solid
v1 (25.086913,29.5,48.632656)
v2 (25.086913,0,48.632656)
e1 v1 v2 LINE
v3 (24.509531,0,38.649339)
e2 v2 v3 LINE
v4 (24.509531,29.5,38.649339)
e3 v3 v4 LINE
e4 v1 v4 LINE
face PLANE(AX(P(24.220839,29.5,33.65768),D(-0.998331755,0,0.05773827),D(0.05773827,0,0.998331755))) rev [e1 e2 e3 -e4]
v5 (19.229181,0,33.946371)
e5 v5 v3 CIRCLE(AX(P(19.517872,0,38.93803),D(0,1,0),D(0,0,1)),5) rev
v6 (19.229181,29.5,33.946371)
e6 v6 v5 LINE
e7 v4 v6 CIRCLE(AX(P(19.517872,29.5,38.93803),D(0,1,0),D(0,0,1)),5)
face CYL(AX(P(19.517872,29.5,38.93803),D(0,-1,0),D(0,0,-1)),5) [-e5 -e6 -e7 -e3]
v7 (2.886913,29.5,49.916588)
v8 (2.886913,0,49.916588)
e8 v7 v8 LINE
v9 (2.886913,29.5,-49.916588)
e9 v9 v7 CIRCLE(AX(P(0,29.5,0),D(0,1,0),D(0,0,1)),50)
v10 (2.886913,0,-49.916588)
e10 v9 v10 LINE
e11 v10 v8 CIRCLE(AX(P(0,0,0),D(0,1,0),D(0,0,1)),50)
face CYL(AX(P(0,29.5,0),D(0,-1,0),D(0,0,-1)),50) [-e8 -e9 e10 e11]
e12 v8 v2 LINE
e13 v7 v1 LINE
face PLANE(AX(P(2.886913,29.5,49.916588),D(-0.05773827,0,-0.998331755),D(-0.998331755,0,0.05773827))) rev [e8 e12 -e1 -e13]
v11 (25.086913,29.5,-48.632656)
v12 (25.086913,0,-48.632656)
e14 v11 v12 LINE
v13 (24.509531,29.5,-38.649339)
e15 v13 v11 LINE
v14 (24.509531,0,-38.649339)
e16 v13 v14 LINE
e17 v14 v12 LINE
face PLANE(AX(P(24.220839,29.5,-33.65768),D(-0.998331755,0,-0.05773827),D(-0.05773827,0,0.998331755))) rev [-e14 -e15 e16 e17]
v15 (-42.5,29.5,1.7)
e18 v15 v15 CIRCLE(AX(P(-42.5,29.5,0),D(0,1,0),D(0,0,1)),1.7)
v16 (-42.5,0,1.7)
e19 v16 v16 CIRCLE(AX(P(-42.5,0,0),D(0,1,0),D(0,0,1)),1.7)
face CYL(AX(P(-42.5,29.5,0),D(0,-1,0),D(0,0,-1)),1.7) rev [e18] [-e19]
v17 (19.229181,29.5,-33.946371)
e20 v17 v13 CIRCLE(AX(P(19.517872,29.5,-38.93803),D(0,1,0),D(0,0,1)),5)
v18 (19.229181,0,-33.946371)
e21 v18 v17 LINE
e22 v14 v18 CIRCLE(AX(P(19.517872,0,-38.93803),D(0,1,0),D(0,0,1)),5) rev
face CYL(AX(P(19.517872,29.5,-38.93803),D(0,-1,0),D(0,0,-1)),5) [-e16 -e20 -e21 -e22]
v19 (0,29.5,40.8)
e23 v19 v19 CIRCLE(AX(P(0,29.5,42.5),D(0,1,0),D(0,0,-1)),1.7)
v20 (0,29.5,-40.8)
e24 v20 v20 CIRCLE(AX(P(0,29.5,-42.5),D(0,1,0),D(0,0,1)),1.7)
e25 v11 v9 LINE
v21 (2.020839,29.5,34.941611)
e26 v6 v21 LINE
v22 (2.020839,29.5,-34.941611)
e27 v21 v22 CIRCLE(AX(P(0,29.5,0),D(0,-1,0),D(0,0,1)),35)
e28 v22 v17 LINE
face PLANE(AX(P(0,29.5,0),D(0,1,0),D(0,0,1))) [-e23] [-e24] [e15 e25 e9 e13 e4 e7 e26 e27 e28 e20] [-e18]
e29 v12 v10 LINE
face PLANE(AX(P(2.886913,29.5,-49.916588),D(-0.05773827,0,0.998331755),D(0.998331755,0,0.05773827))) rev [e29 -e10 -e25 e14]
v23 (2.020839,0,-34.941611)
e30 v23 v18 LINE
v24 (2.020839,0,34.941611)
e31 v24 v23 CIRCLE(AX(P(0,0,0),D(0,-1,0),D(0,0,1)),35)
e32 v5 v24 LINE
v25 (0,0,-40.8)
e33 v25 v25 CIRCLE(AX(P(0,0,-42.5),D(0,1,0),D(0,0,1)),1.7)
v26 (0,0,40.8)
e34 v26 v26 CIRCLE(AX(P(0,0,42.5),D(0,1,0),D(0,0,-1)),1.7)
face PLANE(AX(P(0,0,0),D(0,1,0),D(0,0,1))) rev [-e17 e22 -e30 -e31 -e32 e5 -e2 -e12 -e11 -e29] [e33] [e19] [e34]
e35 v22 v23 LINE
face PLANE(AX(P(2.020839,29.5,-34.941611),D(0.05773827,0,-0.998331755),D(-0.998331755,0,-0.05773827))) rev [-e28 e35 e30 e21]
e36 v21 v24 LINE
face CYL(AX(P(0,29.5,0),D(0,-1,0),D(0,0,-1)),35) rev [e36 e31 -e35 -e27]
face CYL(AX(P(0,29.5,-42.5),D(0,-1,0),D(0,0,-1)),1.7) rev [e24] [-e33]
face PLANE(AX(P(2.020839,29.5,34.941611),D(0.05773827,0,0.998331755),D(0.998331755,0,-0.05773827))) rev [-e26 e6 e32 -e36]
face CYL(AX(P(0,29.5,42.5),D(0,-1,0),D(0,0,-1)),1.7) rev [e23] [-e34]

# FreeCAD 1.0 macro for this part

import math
import FreeCAD as App
import Part
import Sketcher
Q = App.Units.Quantity


def edges_at(feature, points):
    """Names of the edges that pass closest to the given points."""
    edges = feature.Shape.Edges
    near = lambda p: min(range(len(edges)), key=lambda i: edges[i].distToShape(Part.Vertex(*p))[0])
    return sorted({f"Edge{near(p) + 1}" for p in points})

doc = App.newDocument("Part")
body = doc.addObject("PartDesign::Body", "Body")

# Sketch on XZ plane
sketch1 = body.newObject("Sketcher::SketchObject", "Sketch")
sketch1.AttachmentSupport = (doc.getObject("XZ_Plane"), [""])
sketch1.MapMode = "FlatFace"
sketch1.addGeometry([
    Part.LineSegment(App.Vector(25.1, -48.6, 0), App.Vector(2.9, -49.9, 0)),  # 0
    Part.ArcOfCircle(Part.Circle(App.Vector(0, 0, 0), App.Vector(0, 0, 1), 50), math.radians(87), math.radians(273)),  # 1
    Part.LineSegment(App.Vector(2.9, 49.9, 0), App.Vector(25.1, 48.6, 0)),  # 2
    Part.LineSegment(App.Vector(25.1, 48.6, 0), App.Vector(24.2, 33.7, 0)),  # 3
    Part.LineSegment(App.Vector(24.2, 33.7, 0), App.Vector(2, 34.9, 0)),  # 4
    Part.ArcOfCircle(Part.Circle(App.Vector(0, 0, 0), App.Vector(0, 0, 1), 35), math.radians(87), math.radians(273)),  # 5
    Part.LineSegment(App.Vector(2, -34.9, 0), App.Vector(24.2, -33.7, 0)),  # 6
    Part.LineSegment(App.Vector(24.2, -33.7, 0), App.Vector(25.1, -48.6, 0)),  # 7
    Part.Circle(App.Vector(0, 42.5, 0), App.Vector(0, 0, 1), 1.7),  # 8
    Part.Circle(App.Vector(0, -42.5, 0), App.Vector(0, 0, 1), 1.7),  # 9
    Part.Circle(App.Vector(-42.5, 0, 0), App.Vector(0, 0, 1), 1.7),  # 10
], False)
sketch1.addConstraint([
    Sketcher.Constraint("Tangent", 0, 2, 1, 2),
    Sketcher.Constraint("Tangent", 1, 1, 2, 1),
    Sketcher.Constraint("Coincident", 2, 2, 3, 1),
    Sketcher.Constraint("Coincident", 3, 2, 4, 1),
    Sketcher.Constraint("Tangent", 4, 2, 5, 1),
    Sketcher.Constraint("Tangent", 5, 2, 6, 1),
    Sketcher.Constraint("Coincident", 6, 2, 7, 1),
    Sketcher.Constraint("Coincident", 7, 2, 0, 1),
    Sketcher.Constraint("Coincident", 1, 3, -1, 1),
    Sketcher.Constraint("Coincident", 5, 3, -1, 1),
    Sketcher.Constraint("Equal", 8, 9),
    Sketcher.Constraint("Equal", 9, 10),
    Sketcher.Constraint("Symmetric", 8, 3, 9, 3, -1, 1),
    Sketcher.Constraint("Symmetric", 3, 2, 6, 2, -1),
    Sketcher.Constraint("Symmetric", 2, 2, 7, 2, -1),
    Sketcher.Constraint("PointOnObject", 8, 3, -2),
    Sketcher.Constraint("PointOnObject", 10, 3, -1),
    Sketcher.Constraint("Perpendicular", 2, 3),
    Sketcher.Constraint("Perpendicular", 3, 4),
    Sketcher.Constraint("Radius", 1, 50.0),
    Sketcher.Constraint("Radius", 5, 35.0),
    Sketcher.Constraint("Diameter", 8, 3.4),
    Sketcher.Constraint("DistanceY", 9, 3, 8, 3, 85.0),
    Sketcher.Constraint("DistanceX", 10, 3, -1, 1, 42.5),
    Sketcher.Constraint("Angle", 0, Q("-176.69 deg")),
    Sketcher.Constraint("DistanceX", 1, 1, 2, 2, 22.2),
])
pad1 = body.newObject("PartDesign::Pad", "Pad")
pad1.Profile = sketch1
pad1.Length = 29.5
pad1.Reversed = True
doc.recompute()

fillet = body.newObject("PartDesign::Fillet", "Fillet")
fillet.Base = (pad1, edges_at(pad1, [(24.221, 14.75, -33.658), (24.221, 14.75, 33.658)]))
fillet.Radius = 5

doc.recompute()
